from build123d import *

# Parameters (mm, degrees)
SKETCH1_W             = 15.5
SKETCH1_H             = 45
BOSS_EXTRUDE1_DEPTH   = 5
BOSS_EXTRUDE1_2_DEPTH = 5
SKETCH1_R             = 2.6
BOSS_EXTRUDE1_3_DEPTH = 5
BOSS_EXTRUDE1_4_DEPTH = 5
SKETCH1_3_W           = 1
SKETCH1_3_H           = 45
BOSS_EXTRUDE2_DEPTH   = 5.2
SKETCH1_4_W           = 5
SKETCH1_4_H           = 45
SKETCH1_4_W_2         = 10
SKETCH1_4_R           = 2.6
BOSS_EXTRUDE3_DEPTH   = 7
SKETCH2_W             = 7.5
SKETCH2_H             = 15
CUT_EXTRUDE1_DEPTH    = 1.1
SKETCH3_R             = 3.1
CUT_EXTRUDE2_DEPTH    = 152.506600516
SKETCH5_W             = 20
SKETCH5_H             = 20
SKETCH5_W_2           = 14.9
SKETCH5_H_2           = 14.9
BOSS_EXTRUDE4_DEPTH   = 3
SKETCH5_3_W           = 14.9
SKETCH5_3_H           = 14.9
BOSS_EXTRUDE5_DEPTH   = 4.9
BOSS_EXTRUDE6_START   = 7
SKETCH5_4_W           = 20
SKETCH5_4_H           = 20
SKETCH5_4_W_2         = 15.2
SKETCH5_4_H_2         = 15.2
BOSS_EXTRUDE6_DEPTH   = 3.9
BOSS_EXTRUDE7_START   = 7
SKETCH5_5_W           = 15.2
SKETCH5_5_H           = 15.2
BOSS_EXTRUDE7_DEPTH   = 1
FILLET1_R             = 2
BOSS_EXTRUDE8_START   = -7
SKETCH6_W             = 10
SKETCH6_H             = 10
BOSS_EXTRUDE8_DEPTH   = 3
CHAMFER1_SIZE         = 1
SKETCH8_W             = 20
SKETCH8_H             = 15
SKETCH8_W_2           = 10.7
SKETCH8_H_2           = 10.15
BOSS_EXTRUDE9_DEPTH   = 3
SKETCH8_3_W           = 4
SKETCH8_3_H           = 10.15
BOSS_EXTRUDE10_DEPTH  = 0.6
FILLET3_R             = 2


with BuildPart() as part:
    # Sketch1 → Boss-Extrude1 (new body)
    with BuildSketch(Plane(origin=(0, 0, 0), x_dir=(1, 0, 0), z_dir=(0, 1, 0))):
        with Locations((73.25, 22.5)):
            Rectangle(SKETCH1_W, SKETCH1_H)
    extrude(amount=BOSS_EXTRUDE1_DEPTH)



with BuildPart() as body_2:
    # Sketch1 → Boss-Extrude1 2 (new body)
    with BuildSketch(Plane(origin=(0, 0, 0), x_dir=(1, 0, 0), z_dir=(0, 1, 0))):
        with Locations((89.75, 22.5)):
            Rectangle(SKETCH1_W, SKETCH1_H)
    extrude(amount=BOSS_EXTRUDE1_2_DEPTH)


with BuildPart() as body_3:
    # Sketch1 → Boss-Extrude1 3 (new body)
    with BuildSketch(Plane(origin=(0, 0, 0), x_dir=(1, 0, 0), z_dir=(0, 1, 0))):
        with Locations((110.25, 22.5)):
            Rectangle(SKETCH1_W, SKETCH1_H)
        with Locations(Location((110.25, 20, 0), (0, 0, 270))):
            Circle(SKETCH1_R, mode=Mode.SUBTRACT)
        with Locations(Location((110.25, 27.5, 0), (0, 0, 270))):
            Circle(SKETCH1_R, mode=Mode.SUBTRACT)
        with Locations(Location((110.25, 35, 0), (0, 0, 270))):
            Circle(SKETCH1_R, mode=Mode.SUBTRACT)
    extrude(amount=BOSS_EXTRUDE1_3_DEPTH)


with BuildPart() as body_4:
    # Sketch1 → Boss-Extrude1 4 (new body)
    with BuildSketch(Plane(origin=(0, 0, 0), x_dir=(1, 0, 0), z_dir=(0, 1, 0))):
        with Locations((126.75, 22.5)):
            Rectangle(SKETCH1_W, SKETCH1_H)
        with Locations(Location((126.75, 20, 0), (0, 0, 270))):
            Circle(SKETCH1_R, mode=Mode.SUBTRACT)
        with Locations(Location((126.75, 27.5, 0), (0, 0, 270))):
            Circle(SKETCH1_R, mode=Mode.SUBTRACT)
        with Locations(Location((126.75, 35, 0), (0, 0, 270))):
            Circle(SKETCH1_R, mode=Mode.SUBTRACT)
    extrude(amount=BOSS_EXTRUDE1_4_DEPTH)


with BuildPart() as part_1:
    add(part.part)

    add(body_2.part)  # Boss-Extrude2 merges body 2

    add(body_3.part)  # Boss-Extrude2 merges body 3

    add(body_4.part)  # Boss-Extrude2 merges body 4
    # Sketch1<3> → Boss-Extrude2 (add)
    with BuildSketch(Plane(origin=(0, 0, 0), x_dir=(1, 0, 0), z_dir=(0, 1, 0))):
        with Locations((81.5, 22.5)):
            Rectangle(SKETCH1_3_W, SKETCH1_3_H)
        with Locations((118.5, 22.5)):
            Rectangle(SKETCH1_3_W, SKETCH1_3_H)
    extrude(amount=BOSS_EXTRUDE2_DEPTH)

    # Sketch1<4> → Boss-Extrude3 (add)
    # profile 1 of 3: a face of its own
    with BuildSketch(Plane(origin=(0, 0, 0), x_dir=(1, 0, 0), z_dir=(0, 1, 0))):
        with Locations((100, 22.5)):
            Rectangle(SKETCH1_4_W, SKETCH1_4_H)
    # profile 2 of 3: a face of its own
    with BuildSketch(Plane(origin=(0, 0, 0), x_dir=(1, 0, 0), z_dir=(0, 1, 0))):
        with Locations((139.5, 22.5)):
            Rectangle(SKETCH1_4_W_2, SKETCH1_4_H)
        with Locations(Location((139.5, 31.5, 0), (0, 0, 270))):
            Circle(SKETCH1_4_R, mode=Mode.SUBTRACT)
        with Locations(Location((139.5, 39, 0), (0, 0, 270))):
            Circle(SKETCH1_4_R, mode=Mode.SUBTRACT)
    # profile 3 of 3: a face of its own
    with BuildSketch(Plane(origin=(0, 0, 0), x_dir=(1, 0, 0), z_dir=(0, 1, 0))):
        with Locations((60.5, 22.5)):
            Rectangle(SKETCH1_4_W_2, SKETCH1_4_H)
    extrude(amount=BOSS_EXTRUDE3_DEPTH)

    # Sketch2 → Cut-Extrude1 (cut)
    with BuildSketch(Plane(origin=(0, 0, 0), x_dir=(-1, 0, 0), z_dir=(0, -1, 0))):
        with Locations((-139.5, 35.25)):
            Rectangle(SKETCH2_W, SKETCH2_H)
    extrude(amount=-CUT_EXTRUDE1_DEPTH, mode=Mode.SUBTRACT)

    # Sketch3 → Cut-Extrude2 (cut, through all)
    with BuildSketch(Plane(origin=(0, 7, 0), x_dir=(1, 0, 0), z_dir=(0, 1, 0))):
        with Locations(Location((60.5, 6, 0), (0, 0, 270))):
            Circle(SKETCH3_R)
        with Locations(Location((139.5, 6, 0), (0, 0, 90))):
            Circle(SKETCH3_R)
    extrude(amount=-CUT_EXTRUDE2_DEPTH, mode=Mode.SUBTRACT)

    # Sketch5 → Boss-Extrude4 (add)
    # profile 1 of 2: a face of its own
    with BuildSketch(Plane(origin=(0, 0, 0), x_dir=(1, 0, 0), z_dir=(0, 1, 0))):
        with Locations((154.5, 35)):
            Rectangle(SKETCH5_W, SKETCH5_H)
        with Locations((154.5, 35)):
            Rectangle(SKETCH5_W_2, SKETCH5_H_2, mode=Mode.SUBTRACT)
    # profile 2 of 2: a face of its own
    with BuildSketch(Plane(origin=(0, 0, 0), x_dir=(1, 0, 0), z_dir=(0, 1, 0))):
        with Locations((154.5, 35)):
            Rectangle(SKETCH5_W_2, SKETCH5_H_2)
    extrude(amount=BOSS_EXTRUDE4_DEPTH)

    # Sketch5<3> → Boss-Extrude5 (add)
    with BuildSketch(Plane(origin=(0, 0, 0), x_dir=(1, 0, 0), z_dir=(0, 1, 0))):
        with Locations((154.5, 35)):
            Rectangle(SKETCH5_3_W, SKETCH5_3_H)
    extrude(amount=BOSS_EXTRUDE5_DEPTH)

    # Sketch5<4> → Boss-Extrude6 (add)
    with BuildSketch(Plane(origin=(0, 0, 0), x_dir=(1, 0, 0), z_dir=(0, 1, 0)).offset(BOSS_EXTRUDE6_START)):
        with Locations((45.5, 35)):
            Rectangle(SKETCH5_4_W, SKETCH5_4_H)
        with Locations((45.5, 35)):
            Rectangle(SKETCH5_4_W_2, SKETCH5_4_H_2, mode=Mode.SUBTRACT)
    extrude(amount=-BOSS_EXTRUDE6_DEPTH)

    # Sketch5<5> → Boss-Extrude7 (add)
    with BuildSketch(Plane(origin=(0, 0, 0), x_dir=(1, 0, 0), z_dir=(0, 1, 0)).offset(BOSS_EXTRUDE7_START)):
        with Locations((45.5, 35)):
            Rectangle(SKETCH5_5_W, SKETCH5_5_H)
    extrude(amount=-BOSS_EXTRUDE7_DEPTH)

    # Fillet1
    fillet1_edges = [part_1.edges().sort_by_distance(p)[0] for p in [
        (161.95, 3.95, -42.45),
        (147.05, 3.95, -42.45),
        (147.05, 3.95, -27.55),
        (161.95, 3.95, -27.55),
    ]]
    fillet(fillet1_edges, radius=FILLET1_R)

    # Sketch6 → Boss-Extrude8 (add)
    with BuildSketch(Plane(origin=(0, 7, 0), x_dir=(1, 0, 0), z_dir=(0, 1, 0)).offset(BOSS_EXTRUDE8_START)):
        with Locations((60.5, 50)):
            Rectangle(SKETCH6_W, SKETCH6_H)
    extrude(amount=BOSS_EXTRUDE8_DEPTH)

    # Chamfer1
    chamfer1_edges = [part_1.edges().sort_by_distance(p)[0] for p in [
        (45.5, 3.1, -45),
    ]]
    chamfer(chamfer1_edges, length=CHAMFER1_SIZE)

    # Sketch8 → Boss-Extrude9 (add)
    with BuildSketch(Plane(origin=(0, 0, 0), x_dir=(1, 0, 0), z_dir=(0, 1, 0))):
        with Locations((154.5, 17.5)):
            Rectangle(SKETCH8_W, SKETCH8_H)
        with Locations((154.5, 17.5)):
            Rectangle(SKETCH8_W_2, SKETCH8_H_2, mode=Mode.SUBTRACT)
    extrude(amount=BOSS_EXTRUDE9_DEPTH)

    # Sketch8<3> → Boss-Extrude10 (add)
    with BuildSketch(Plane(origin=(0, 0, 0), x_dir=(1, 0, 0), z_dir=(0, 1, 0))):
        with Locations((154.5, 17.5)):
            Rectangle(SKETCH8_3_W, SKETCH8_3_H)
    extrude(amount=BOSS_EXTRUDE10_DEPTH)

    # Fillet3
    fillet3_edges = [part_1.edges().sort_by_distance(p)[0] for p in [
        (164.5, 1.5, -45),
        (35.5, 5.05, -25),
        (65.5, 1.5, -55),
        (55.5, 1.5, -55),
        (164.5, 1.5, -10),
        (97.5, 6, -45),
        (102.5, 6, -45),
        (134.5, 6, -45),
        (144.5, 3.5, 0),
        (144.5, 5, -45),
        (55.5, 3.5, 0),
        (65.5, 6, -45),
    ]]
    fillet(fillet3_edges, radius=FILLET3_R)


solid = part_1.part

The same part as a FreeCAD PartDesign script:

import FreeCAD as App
import Part
import Sketcher


def edges_at(feature, points):
    """Names of the edges that pass closest to the given points."""
    edges = feature.Shape.Edges
    near = lambda p: min(range(len(edges)), key=lambda i: edges[i].distToShape(Part.Vertex(*p))[0])
    return sorted({f"Edge{near(p) + 1}" for p in points})


def add_polygon(sketch, points):
    """Adds a closed chain of lines whose ends are joined by coincident constraints."""
    first, n = sketch.GeometryCount, len(points)
    for a, b in zip(points, points[1:] + points[:1]):
        sketch.addGeometry(Part.LineSegment(App.Vector(*a, 0), App.Vector(*b, 0)), False)
    for i in range(n):
        sketch.addConstraint(Sketcher.Constraint("Coincident", first + i, 2, first + (i + 1) % n, 1))

doc = App.newDocument("Part")
body = doc.addObject("PartDesign::Body", "Body")

sketch1 = body.newObject("Sketcher::SketchObject", "Sketch")
sketch1.AttachmentSupport = (doc.getObject("XZ_Plane"), [""])
sketch1.MapMode = "FlatFace"
add_polygon(sketch1, [(66, -45), (66, 0), (81, 0), (81, -45)])
sketch1.addConstraint(Sketcher.Constraint("Vertical", 0))
sketch1.addConstraint(Sketcher.Constraint("Horizontal", 1))
sketch1.addConstraint(Sketcher.Constraint("Vertical", 2))
sketch1.addConstraint(Sketcher.Constraint("Horizontal", 3))
sketch1.addConstraint(Sketcher.Constraint("PointOnObject", 0, 2, -1))
sketch1.addConstraint(Sketcher.Constraint("DistanceY", 0, 1, 0, 2, 45.0))
sketch1.addConstraint(Sketcher.Constraint("DistanceX", 1, 1, 1, 2, 15.5))
sketch1.addConstraint(Sketcher.Constraint("DistanceX", -1, 1, 1, 2, 81.0))
pad1 = body.newObject("PartDesign::Pad", "Pad")
pad1.Profile = sketch1
pad1.Length = 5
pad1.Reversed = True
body2 = doc.addObject("PartDesign::Body", "Body001")

sketch2 = body2.newObject("Sketcher::SketchObject", "Sketch001")
sketch2.AttachmentSupport = (doc.getObject("XZ_Plane001"), [""])
sketch2.MapMode = "FlatFace"
add_polygon(sketch2, [(82, -45), (82, 0), (98, 0), (98, -45)])
sketch2.addConstraint(Sketcher.Constraint("Vertical", 0))
sketch2.addConstraint(Sketcher.Constraint("Horizontal", 1))
sketch2.addConstraint(Sketcher.Constraint("Vertical", 2))
sketch2.addConstraint(Sketcher.Constraint("Horizontal", 3))
sketch2.addConstraint(Sketcher.Constraint("PointOnObject", 0, 2, -1))
sketch2.addConstraint(Sketcher.Constraint("DistanceY", 0, 1, 0, 2, 45.0))
sketch2.addConstraint(Sketcher.Constraint("DistanceX", 1, 1, 1, 2, 15.5))
sketch2.addConstraint(Sketcher.Constraint("DistanceX", -1, 1, 0, 2, 82.0))
pad2 = body2.newObject("PartDesign::Pad", "Pad001")
pad2.Profile = sketch2
pad2.Length = 5
pad2.Reversed = True
body3 = doc.addObject("PartDesign::Body", "Body002")

sketch3 = body3.newObject("Sketcher::SketchObject", "Sketch002")
sketch3.AttachmentSupport = (doc.getObject("XZ_Plane002"), [""])
sketch3.MapMode = "FlatFace"
add_polygon(sketch3, [(102.5, -45), (102.5, 0), (118, 0), (118, -45)])
sketch3.addGeometry(Part.Circle(App.Vector(110.2, -20, 0), App.Vector(0, 0, 1), 2.6), False)
sketch3.addGeometry(Part.Circle(App.Vector(110.2, -27.5, 0), App.Vector(0, 0, 1), 2.6), False)
sketch3.addGeometry(Part.Circle(App.Vector(110.2, -35, 0), App.Vector(0, 0, 1), 2.6), False)
sketch3.addConstraint(Sketcher.Constraint("Vertical", 0))
sketch3.addConstraint(Sketcher.Constraint("Horizontal", 1))
sketch3.addConstraint(Sketcher.Constraint("Vertical", 2))
sketch3.addConstraint(Sketcher.Constraint("Horizontal", 3))
sketch3.addConstraint(Sketcher.Constraint("Equal", 4, 5))
sketch3.addConstraint(Sketcher.Constraint("Equal", 5, 6))
sketch3.addConstraint(Sketcher.Constraint("PointOnObject", 0, 2, -1))
sketch3.addConstraint(Sketcher.Constraint("Vertical", 4, 3, 5, 3))
sketch3.addConstraint(Sketcher.Constraint("Vertical", 5, 3, 6, 3))
sketch3.addConstraint(Sketcher.Constraint("Diameter", 4, 5.2))
sketch3.addConstraint(Sketcher.Constraint("DistanceY", 0, 1, 0, 2, 45.0))
sketch3.addConstraint(Sketcher.Constraint("DistanceX", 1, 1, 1, 2, 15.5))
sketch3.addConstraint(Sketcher.Constraint("DistanceY", 4, 3, -1, 1, 20.0))
sketch3.addConstraint(Sketcher.Constraint("DistanceY", 6, 3, -1, 1, 35.0))
sketch3.addConstraint(Sketcher.Constraint("DistanceX", -1, 1, 1, 2, 118.0))
sketch3.addConstraint(Sketcher.Constraint("DistanceY", 5, 3, -1, 1, 27.5))
sketch3.addConstraint(Sketcher.Constraint("DistanceX", -1, 1, 4, 3, 110.25))
pad3 = body3.newObject("PartDesign::Pad", "Pad002")
pad3.Profile = sketch3
pad3.Length = 5
pad3.Reversed = True
body4 = doc.addObject("PartDesign::Body", "Body003")

sketch4 = body4.newObject("Sketcher::SketchObject", "Sketch003")
sketch4.AttachmentSupport = (doc.getObject("XZ_Plane003"), [""])
sketch4.MapMode = "FlatFace"
add_polygon(sketch4, [(119, -45), (119, 0), (134.5, 0), (134.5, -45)])
sketch4.addGeometry(Part.Circle(App.Vector(126.8, -20, 0), App.Vector(0, 0, 1), 2.6), False)
sketch4.addGeometry(Part.Circle(App.Vector(126.8, -27.5, 0), App.Vector(0, 0, 1), 2.6), False)
sketch4.addGeometry(Part.Circle(App.Vector(126.8, -35, 0), App.Vector(0, 0, 1), 2.6), False)
sketch4.addConstraint(Sketcher.Constraint("Vertical", 0))
sketch4.addConstraint(Sketcher.Constraint("Horizontal", 1))
sketch4.addConstraint(Sketcher.Constraint("Vertical", 2))
sketch4.addConstraint(Sketcher.Constraint("Horizontal", 3))
sketch4.addConstraint(Sketcher.Constraint("Equal", 4, 5))
sketch4.addConstraint(Sketcher.Constraint("Equal", 5, 6))
sketch4.addConstraint(Sketcher.Constraint("PointOnObject", 0, 2, -1))
sketch4.addConstraint(Sketcher.Constraint("Vertical", 4, 3, 5, 3))
sketch4.addConstraint(Sketcher.Constraint("Vertical", 5, 3, 6, 3))
sketch4.addConstraint(Sketcher.Constraint("Diameter", 4, 5.2))
sketch4.addConstraint(Sketcher.Constraint("DistanceY", 0, 1, 0, 2, 45.0))
sketch4.addConstraint(Sketcher.Constraint("DistanceX", 1, 1, 1, 2, 15.5))
sketch4.addConstraint(Sketcher.Constraint("DistanceY", 4, 3, -1, 1, 20.0))
sketch4.addConstraint(Sketcher.Constraint("DistanceY", 6, 3, -1, 1, 35.0))
sketch4.addConstraint(Sketcher.Constraint("DistanceX", -1, 1, 0, 2, 119.0))
sketch4.addConstraint(Sketcher.Constraint("DistanceY", 5, 3, -1, 1, 27.5))
sketch4.addConstraint(Sketcher.Constraint("DistanceX", -1, 1, 4, 3, 126.75))
pad4 = body4.newObject("PartDesign::Pad", "Pad003")
pad4.Profile = sketch4
pad4.Length = 5
pad4.Reversed = True
body.AllowCompound = True
doc.recompute()

boolean = body.newObject("PartDesign::Boolean", "Boolean")
boolean.Type = "Fuse"
boolean.addObjects([body2])
doc.recompute()

boolean2 = body.newObject("PartDesign::Boolean", "Boolean001")
boolean2.Type = "Fuse"
boolean2.addObjects([body3])
doc.recompute()

boolean3 = body.newObject("PartDesign::Boolean", "Boolean002")
boolean3.Type = "Fuse"
boolean3.addObjects([body4])

sketch5 = body.newObject("Sketcher::SketchObject", "Sketch004")
sketch5.AttachmentSupport = (doc.getObject("XZ_Plane"), [""])
sketch5.MapMode = "FlatFace"
add_polygon(sketch5, [(81, -45), (81, 0), (82, 0), (82, -45)])
add_polygon(sketch5, [(118, -45), (118, 0), (119, 0), (119, -45)])
sketch5.addConstraint(Sketcher.Constraint("Vertical", 0))
sketch5.addConstraint(Sketcher.Constraint("Horizontal", 1))
sketch5.addConstraint(Sketcher.Constraint("Vertical", 2))
sketch5.addConstraint(Sketcher.Constraint("Horizontal", 3))
sketch5.addConstraint(Sketcher.Constraint("Vertical", 4))
sketch5.addConstraint(Sketcher.Constraint("Horizontal", 5))
sketch5.addConstraint(Sketcher.Constraint("Vertical", 6))
sketch5.addConstraint(Sketcher.Constraint("Horizontal", 7))
sketch5.addConstraint(Sketcher.Constraint("PointOnObject", 0, 2, -1))
sketch5.addConstraint(Sketcher.Constraint("PointOnObject", 4, 2, -1))
sketch5.addConstraint(Sketcher.Constraint("Horizontal", 3, 2, 6, 2))
sketch5.addConstraint(Sketcher.Constraint("Equal", 3, 5))
sketch5.addConstraint(Sketcher.Constraint("DistanceX", 1, 1, 1, 2, 1.0))
sketch5.addConstraint(Sketcher.Constraint("DistanceY", 0, 1, 0, 2, 45.0))
sketch5.addConstraint(Sketcher.Constraint("DistanceX", -1, 1, 0, 2, 81.0))
sketch5.addConstraint(Sketcher.Constraint("DistanceX", -1, 1, 4, 2, 118.0))
pad5 = body.newObject("PartDesign::Pad", "Pad004")
pad5.Profile = sketch5
pad5.Length = 5.2
pad5.Reversed = True

sketch6 = body.newObject("Sketcher::SketchObject", "Sketch005")
sketch6.AttachmentSupport = (doc.getObject("XZ_Plane"), [""])
sketch6.MapMode = "FlatFace"
add_polygon(sketch6, [(97.5, -45), (97.5, 0), (102.5, 0), (102.5, -45)])
add_polygon(sketch6, [(134.5, -45), (134.5, 0), (144.5, 0), (144.5, -45)])
sketch6.addGeometry(Part.Circle(App.Vector(139.5, -31.5, 0), App.Vector(0, 0, 1), 2.6), False)
sketch6.addGeometry(Part.Circle(App.Vector(139.5, -39, 0), App.Vector(0, 0, 1), 2.6), False)
add_polygon(sketch6, [(55.5, -45), (55.5, 0), (65.5, 0), (65.5, -45)])
sketch6.addConstraint(Sketcher.Constraint("Vertical", 0))
sketch6.addConstraint(Sketcher.Constraint("Horizontal", 1))
sketch6.addConstraint(Sketcher.Constraint("Vertical", 2))
sketch6.addConstraint(Sketcher.Constraint("Horizontal", 3))
sketch6.addConstraint(Sketcher.Constraint("Vertical", 4))
sketch6.addConstraint(Sketcher.Constraint("Horizontal", 5))
sketch6.addConstraint(Sketcher.Constraint("Vertical", 6))
sketch6.addConstraint(Sketcher.Constraint("Horizontal", 7))
sketch6.addConstraint(Sketcher.Constraint("Vertical", 10))
sketch6.addConstraint(Sketcher.Constraint("Horizontal", 11))
sketch6.addConstraint(Sketcher.Constraint("Vertical", 12))
sketch6.addConstraint(Sketcher.Constraint("Horizontal", 13))
sketch6.addConstraint(Sketcher.Constraint("Equal", 8, 9))
sketch6.addConstraint(Sketcher.Constraint("PointOnObject", 0, 2, -1))
sketch6.addConstraint(Sketcher.Constraint("PointOnObject", 4, 2, -1))
sketch6.addConstraint(Sketcher.Constraint("PointOnObject", 10, 2, -1))
sketch6.addConstraint(Sketcher.Constraint("Horizontal", 3, 2, 6, 2))
sketch6.addConstraint(Sketcher.Constraint("Horizontal", 7, 2, 12, 2))
sketch6.addConstraint(Sketcher.Constraint("Vertical", 8, 3, 9, 3))
sketch6.addConstraint(Sketcher.Constraint("Equal", 7, 11))
sketch6.addConstraint(Sketcher.Constraint("Diameter", 8, 5.2))
sketch6.addConstraint(Sketcher.Constraint("DistanceX", 1, 1, 1, 2, 5.0))
sketch6.addConstraint(Sketcher.Constraint("DistanceX", 5, 1, 5, 2, 10.0))
sketch6.addConstraint(Sketcher.Constraint("DistanceY", 0, 1, 0, 2, 45.0))
sketch6.addConstraint(Sketcher.Constraint("DistanceY", 9, 3, -1, 1, 39.0))
sketch6.addConstraint(Sketcher.Constraint("DistanceX", 0, 2, 8, 3, 42.0))
sketch6.addConstraint(Sketcher.Constraint("DistanceX", 4, 2, 8, 3, 5.0))
sketch6.addConstraint(Sketcher.Constraint("DistanceX", 10, 2, 0, 2, 42.0))
sketch6.addConstraint(Sketcher.Constraint("DistanceX", -1, 1, 8, 3, 139.5))
sketch6.addConstraint(Sketcher.Constraint("DistanceY", 8, 3, -1, 1, 31.5))
pad6 = body.newObject("PartDesign::Pad", "Pad005")
pad6.Profile = sketch6
pad6.Length = 7
pad6.Reversed = True

sketch7 = body.newObject("Sketcher::SketchObject", "Sketch006")
sketch7.AttachmentSupport = (doc.getObject("XZ_Plane"), [""])
sketch7.MapMode = "FlatFace"
add_polygon(sketch7, [(143, -43), (143, -28), (136, -28), (136, -43)])
sketch7.addConstraint(Sketcher.Constraint("Vertical", 0))
sketch7.addConstraint(Sketcher.Constraint("Horizontal", 1))
sketch7.addConstraint(Sketcher.Constraint("Vertical", 2))
sketch7.addConstraint(Sketcher.Constraint("Horizontal", 3))
sketch7.addConstraint(Sketcher.Constraint("DistanceY", 0, 1, 0, 2, 15.0))
sketch7.addConstraint(Sketcher.Constraint("DistanceX", 1, 2, 1, 1, 7.5))
sketch7.addConstraint(Sketcher.Constraint("DistanceX", -1, 1, 0, 2, 143.25))
sketch7.addConstraint(Sketcher.Constraint("DistanceY", 0, 2, -1, 1, 27.75))
pocket1 = body.newObject("PartDesign::Pocket", "Pocket")
pocket1.Profile = sketch7
pocket1.Length = 1.1

sketch8 = body.newObject("Sketcher::SketchObject", "Sketch007")
sketch8.AttachmentSupport = (doc.getObject("XZ_Plane"), [""])
sketch8.MapMode = "FlatFace"
sketch8.AttachmentOffset = App.Placement(App.Vector(0, 0, -7), App.Rotation())
sketch8.addGeometry(Part.Circle(App.Vector(60.5, -6, 0), App.Vector(0, 0, 1), 3.1), False)
sketch8.addGeometry(Part.Circle(App.Vector(139.5, -6, 0), App.Vector(0, 0, 1), 3.1), False)
sketch8.addConstraint(Sketcher.Constraint("Equal", 0, 1))
sketch8.addConstraint(Sketcher.Constraint("Horizontal", 0, 3, 1, 3))
sketch8.addConstraint(Sketcher.Constraint("Diameter", 0, 6.2))
sketch8.addConstraint(Sketcher.Constraint("DistanceY", 0, 3, -1, 1, 6.0))
sketch8.addConstraint(Sketcher.Constraint("DistanceX", 0, 3, 1, 3, 79.0))
sketch8.addConstraint(Sketcher.Constraint("DistanceX", -1, 1, 0, 3, 60.5))
pocket2 = body.newObject("PartDesign::Pocket", "Pocket001")
pocket2.Profile = sketch8
pocket2.Type = "ThroughAll"
pocket2.Reversed = True

sketch9 = body.newObject("Sketcher::SketchObject", "Sketch008")
sketch9.AttachmentSupport = (doc.getObject("XZ_Plane"), [""])
sketch9.MapMode = "FlatFace"
add_polygon(sketch9, [(144, -45), (144, -25), (164, -25), (164, -45)])
sketch9.addConstraint(Sketcher.Constraint("Vertical", 0))
sketch9.addConstraint(Sketcher.Constraint("Horizontal", 1))
sketch9.addConstraint(Sketcher.Constraint("Vertical", 2))
sketch9.addConstraint(Sketcher.Constraint("Horizontal", 3))
sketch9.addConstraint(Sketcher.Constraint("Equal", 3, 0))
sketch9.addConstraint(Sketcher.Constraint("DistanceX", 1, 1, 1, 2, 20.0))
sketch9.addConstraint(Sketcher.Constraint("DistanceY", 0, 2, -1, 1, 25.0))
sketch9.addConstraint(Sketcher.Constraint("DistanceX", -1, 1, 0, 2, 144.5))
pad7 = body.newObject("PartDesign::Pad", "Pad006")
pad7.Profile = sketch9
pad7.Length = 3
pad7.Reversed = True

sketch10 = body.newObject("Sketcher::SketchObject", "Sketch009")
sketch10.AttachmentSupport = (doc.getObject("XZ_Plane"), [""])
sketch10.MapMode = "FlatFace"
add_polygon(sketch10, [(147, -42), (147, -28), (162, -28), (162, -42)])
sketch10.addConstraint(Sketcher.Constraint("Vertical", 0))
sketch10.addConstraint(Sketcher.Constraint("Horizontal", 1))
sketch10.addConstraint(Sketcher.Constraint("Vertical", 2))
sketch10.addConstraint(Sketcher.Constraint("Horizontal", 3))
sketch10.addConstraint(Sketcher.Constraint("Equal", 3, 0))
sketch10.addConstraint(Sketcher.Constraint("DistanceX", 1, 1, 1, 2, 14.9))
sketch10.addConstraint(Sketcher.Constraint("DistanceX", -1, 1, 0, 2, 147.05))
sketch10.addConstraint(Sketcher.Constraint("DistanceY", 0, 2, -1, 1, 27.55))
pad8 = body.newObject("PartDesign::Pad", "Pad007")
pad8.Profile = sketch10
pad8.Length = 4.9
pad8.Reversed = True

sketch11 = body.newObject("Sketcher::SketchObject", "Sketch010")
sketch11.AttachmentSupport = (doc.getObject("XZ_Plane"), [""])
sketch11.MapMode = "FlatFace"
sketch11.AttachmentOffset = App.Placement(App.Vector(0, 0, -7), App.Rotation())
add_polygon(sketch11, [(36, -45), (36, -25), (56, -25), (56, -45)])
add_polygon(sketch11, [(53, -27), (38, -27), (38, -43), (53, -43)])
sketch11.addConstraint(Sketcher.Constraint("Vertical", 0))
sketch11.addConstraint(Sketcher.Constraint("Horizontal", 1))
sketch11.addConstraint(Sketcher.Constraint("Vertical", 2))
sketch11.addConstraint(Sketcher.Constraint("Horizontal", 3))
sketch11.addConstraint(Sketcher.Constraint("Horizontal", 4))
sketch11.addConstraint(Sketcher.Constraint("Vertical", 5))
sketch11.addConstraint(Sketcher.Constraint("Horizontal", 6))
sketch11.addConstraint(Sketcher.Constraint("Vertical", 7))
sketch11.addConstraint(Sketcher.Constraint("Equal", 3, 0))
sketch11.addConstraint(Sketcher.Constraint("Equal", 6, 5))
sketch11.addConstraint(Sketcher.Constraint("DistanceX", 1, 1, 1, 2, 20.0))
sketch11.addConstraint(Sketcher.Constraint("DistanceX", 4, 2, 4, 1, 15.2))
sketch11.addConstraint(Sketcher.Constraint("DistanceY", 0, 2, -1, 1, 25.0))
sketch11.addConstraint(Sketcher.Constraint("DistanceX", -1, 1, 0, 2, 35.5))
sketch11.addConstraint(Sketcher.Constraint("DistanceX", -1, 1, 4, 2, 37.9))
sketch11.addConstraint(Sketcher.Constraint("DistanceY", 4, 2, -1, 1, 27.4))
pad9 = body.newObject("PartDesign::Pad", "Pad008")
pad9.Profile = sketch11
pad9.Length = 3.9

sketch12 = body.newObject("Sketcher::SketchObject", "Sketch011")
sketch12.AttachmentSupport = (doc.getObject("XZ_Plane"), [""])
sketch12.MapMode = "FlatFace"
sketch12.AttachmentOffset = App.Placement(App.Vector(0, 0, -7), App.Rotation())
add_polygon(sketch12, [(38, -43), (38, -27), (53, -27), (53, -43)])
sketch12.addConstraint(Sketcher.Constraint("Vertical", 0))
sketch12.addConstraint(Sketcher.Constraint("Horizontal", 1))
sketch12.addConstraint(Sketcher.Constraint("Vertical", 2))
sketch12.addConstraint(Sketcher.Constraint("Horizontal", 3))
sketch12.addConstraint(Sketcher.Constraint("Equal", 3, 0))
sketch12.addConstraint(Sketcher.Constraint("DistanceX", 1, 1, 1, 2, 15.2))
sketch12.addConstraint(Sketcher.Constraint("DistanceX", -1, 1, 0, 2, 37.9))
sketch12.addConstraint(Sketcher.Constraint("DistanceY", 0, 2, -1, 1, 27.4))
pad10 = body.newObject("PartDesign::Pad", "Pad009")
pad10.Profile = sketch12
pad10.Length = 1
doc.recompute()

fillet = body.newObject("PartDesign::Fillet", "Fillet")
fillet.Base = (pad10, edges_at(pad10, [
    (161.95, 3.95, -42.45),
    (147.05, 3.95, -42.45),
    (147.05, 3.95, -27.55),
    (161.95, 3.95, -27.55),
]))
fillet.Radius = 2

sketch13 = body.newObject("Sketcher::SketchObject", "Sketch012")
sketch13.AttachmentSupport = (doc.getObject("XZ_Plane"), [""])
sketch13.MapMode = "FlatFace"
add_polygon(sketch13, [(56, -55), (56, -45), (66, -45), (66, -55)])
sketch13.addConstraint(Sketcher.Constraint("Vertical", 0))
sketch13.addConstraint(Sketcher.Constraint("Horizontal", 1))
sketch13.addConstraint(Sketcher.Constraint("Vertical", 2))
sketch13.addConstraint(Sketcher.Constraint("Horizontal", 3))
sketch13.addConstraint(Sketcher.Constraint("Equal", 3, 0))
sketch13.addConstraint(Sketcher.Constraint("DistanceX", 1, 1, 1, 2, 10.0))
sketch13.addConstraint(Sketcher.Constraint("DistanceY", 0, 2, -1, 1, 45.0))
sketch13.addConstraint(Sketcher.Constraint("DistanceX", -1, 1, 0, 2, 55.5))
pad11 = body.newObject("PartDesign::Pad", "Pad010")
pad11.Profile = sketch13
pad11.Length = 3
pad11.Reversed = True
doc.recompute()

chamfer = body.newObject("PartDesign::Chamfer", "Chamfer")
chamfer.Base = (pad11, edges_at(pad11, [(45.5, 3.1, -45)]))
chamfer.Size = 1

sketch14 = body.newObject("Sketcher::SketchObject", "Sketch013")
sketch14.AttachmentSupport = (doc.getObject("XZ_Plane"), [""])
sketch14.MapMode = "FlatFace"
add_polygon(sketch14, [(144, -25), (144, -10), (164, -10), (164, -25)])
add_polygon(sketch14, [(160, -12), (149, -12), (149, -23), (160, -23)])
sketch14.addConstraint(Sketcher.Constraint("Vertical", 0))
sketch14.addConstraint(Sketcher.Constraint("Horizontal", 1))
sketch14.addConstraint(Sketcher.Constraint("Vertical", 2))
sketch14.addConstraint(Sketcher.Constraint("Horizontal", 3))
sketch14.addConstraint(Sketcher.Constraint("Horizontal", 4))
sketch14.addConstraint(Sketcher.Constraint("Vertical", 5))
sketch14.addConstraint(Sketcher.Constraint("Horizontal", 6))
sketch14.addConstraint(Sketcher.Constraint("Vertical", 7))
sketch14.addConstraint(Sketcher.Constraint("DistanceX", 1, 1, 1, 2, 20.0))
sketch14.addConstraint(Sketcher.Constraint("DistanceY", 0, 1, 0, 2, 15.0))
sketch14.addConstraint(Sketcher.Constraint("DistanceX", 4, 2, 4, 1, 10.7))
sketch14.addConstraint(Sketcher.Constraint("DistanceY", 0, 2, -1, 1, 10.0))
sketch14.addConstraint(Sketcher.Constraint("DistanceY", 5, 2, 5, 1, 10.15))
sketch14.addConstraint(Sketcher.Constraint("DistanceX", -1, 1, 0, 2, 144.5))
sketch14.addConstraint(Sketcher.Constraint("DistanceX", -1, 1, 4, 2, 149.15))
sketch14.addConstraint(Sketcher.Constraint("DistanceY", 4, 2, -1, 1, 12.425))
pad12 = body.newObject("PartDesign::Pad", "Pad011")
pad12.Profile = sketch14
pad12.Length = 3
pad12.Reversed = True

sketch15 = body.newObject("Sketcher::SketchObject", "Sketch014")
sketch15.AttachmentSupport = (doc.getObject("XZ_Plane"), [""])
sketch15.MapMode = "FlatFace"
add_polygon(sketch15, [(152.5, -22.6), (152.5, -12.4), (156.5, -12.4), (156.5, -22.6)])
sketch15.addConstraint(Sketcher.Constraint("Vertical", 0))
sketch15.addConstraint(Sketcher.Constraint("Horizontal", 1))
sketch15.addConstraint(Sketcher.Constraint("Vertical", 2))
sketch15.addConstraint(Sketcher.Constraint("Horizontal", 3))
sketch15.addConstraint(Sketcher.Constraint("DistanceX", 1, 1, 1, 2, 4.0))
sketch15.addConstraint(Sketcher.Constraint("DistanceY", 0, 1, 0, 2, 10.15))
sketch15.addConstraint(Sketcher.Constraint("DistanceX", -1, 1, 0, 2, 152.5))
sketch15.addConstraint(Sketcher.Constraint("DistanceY", 0, 2, -1, 1, 12.425))
pad13 = body.newObject("PartDesign::Pad", "Pad012")
pad13.Profile = sketch15
pad13.Length = 0.6
pad13.Reversed = True
doc.recompute()

fillet2 = body.newObject("PartDesign::Fillet", "Fillet001")
fillet2.Base = (pad13, edges_at(pad13, [
    (164.5, 1.5, -45),
    (35.5, 5.05, -25),
    (65.5, 1.5, -55),
    (55.5, 1.5, -55),
    (164.5, 1.5, -10),
    (97.5, 6, -45),
    (102.5, 6, -45),
    (134.5, 6, -45),
    (144.5, 3.5, 0),
    (144.5, 5, -45),
    (55.5, 3.5, 0),
    (65.5, 6, -45),
]))
fillet2.Radius = 2

doc.recompute()
